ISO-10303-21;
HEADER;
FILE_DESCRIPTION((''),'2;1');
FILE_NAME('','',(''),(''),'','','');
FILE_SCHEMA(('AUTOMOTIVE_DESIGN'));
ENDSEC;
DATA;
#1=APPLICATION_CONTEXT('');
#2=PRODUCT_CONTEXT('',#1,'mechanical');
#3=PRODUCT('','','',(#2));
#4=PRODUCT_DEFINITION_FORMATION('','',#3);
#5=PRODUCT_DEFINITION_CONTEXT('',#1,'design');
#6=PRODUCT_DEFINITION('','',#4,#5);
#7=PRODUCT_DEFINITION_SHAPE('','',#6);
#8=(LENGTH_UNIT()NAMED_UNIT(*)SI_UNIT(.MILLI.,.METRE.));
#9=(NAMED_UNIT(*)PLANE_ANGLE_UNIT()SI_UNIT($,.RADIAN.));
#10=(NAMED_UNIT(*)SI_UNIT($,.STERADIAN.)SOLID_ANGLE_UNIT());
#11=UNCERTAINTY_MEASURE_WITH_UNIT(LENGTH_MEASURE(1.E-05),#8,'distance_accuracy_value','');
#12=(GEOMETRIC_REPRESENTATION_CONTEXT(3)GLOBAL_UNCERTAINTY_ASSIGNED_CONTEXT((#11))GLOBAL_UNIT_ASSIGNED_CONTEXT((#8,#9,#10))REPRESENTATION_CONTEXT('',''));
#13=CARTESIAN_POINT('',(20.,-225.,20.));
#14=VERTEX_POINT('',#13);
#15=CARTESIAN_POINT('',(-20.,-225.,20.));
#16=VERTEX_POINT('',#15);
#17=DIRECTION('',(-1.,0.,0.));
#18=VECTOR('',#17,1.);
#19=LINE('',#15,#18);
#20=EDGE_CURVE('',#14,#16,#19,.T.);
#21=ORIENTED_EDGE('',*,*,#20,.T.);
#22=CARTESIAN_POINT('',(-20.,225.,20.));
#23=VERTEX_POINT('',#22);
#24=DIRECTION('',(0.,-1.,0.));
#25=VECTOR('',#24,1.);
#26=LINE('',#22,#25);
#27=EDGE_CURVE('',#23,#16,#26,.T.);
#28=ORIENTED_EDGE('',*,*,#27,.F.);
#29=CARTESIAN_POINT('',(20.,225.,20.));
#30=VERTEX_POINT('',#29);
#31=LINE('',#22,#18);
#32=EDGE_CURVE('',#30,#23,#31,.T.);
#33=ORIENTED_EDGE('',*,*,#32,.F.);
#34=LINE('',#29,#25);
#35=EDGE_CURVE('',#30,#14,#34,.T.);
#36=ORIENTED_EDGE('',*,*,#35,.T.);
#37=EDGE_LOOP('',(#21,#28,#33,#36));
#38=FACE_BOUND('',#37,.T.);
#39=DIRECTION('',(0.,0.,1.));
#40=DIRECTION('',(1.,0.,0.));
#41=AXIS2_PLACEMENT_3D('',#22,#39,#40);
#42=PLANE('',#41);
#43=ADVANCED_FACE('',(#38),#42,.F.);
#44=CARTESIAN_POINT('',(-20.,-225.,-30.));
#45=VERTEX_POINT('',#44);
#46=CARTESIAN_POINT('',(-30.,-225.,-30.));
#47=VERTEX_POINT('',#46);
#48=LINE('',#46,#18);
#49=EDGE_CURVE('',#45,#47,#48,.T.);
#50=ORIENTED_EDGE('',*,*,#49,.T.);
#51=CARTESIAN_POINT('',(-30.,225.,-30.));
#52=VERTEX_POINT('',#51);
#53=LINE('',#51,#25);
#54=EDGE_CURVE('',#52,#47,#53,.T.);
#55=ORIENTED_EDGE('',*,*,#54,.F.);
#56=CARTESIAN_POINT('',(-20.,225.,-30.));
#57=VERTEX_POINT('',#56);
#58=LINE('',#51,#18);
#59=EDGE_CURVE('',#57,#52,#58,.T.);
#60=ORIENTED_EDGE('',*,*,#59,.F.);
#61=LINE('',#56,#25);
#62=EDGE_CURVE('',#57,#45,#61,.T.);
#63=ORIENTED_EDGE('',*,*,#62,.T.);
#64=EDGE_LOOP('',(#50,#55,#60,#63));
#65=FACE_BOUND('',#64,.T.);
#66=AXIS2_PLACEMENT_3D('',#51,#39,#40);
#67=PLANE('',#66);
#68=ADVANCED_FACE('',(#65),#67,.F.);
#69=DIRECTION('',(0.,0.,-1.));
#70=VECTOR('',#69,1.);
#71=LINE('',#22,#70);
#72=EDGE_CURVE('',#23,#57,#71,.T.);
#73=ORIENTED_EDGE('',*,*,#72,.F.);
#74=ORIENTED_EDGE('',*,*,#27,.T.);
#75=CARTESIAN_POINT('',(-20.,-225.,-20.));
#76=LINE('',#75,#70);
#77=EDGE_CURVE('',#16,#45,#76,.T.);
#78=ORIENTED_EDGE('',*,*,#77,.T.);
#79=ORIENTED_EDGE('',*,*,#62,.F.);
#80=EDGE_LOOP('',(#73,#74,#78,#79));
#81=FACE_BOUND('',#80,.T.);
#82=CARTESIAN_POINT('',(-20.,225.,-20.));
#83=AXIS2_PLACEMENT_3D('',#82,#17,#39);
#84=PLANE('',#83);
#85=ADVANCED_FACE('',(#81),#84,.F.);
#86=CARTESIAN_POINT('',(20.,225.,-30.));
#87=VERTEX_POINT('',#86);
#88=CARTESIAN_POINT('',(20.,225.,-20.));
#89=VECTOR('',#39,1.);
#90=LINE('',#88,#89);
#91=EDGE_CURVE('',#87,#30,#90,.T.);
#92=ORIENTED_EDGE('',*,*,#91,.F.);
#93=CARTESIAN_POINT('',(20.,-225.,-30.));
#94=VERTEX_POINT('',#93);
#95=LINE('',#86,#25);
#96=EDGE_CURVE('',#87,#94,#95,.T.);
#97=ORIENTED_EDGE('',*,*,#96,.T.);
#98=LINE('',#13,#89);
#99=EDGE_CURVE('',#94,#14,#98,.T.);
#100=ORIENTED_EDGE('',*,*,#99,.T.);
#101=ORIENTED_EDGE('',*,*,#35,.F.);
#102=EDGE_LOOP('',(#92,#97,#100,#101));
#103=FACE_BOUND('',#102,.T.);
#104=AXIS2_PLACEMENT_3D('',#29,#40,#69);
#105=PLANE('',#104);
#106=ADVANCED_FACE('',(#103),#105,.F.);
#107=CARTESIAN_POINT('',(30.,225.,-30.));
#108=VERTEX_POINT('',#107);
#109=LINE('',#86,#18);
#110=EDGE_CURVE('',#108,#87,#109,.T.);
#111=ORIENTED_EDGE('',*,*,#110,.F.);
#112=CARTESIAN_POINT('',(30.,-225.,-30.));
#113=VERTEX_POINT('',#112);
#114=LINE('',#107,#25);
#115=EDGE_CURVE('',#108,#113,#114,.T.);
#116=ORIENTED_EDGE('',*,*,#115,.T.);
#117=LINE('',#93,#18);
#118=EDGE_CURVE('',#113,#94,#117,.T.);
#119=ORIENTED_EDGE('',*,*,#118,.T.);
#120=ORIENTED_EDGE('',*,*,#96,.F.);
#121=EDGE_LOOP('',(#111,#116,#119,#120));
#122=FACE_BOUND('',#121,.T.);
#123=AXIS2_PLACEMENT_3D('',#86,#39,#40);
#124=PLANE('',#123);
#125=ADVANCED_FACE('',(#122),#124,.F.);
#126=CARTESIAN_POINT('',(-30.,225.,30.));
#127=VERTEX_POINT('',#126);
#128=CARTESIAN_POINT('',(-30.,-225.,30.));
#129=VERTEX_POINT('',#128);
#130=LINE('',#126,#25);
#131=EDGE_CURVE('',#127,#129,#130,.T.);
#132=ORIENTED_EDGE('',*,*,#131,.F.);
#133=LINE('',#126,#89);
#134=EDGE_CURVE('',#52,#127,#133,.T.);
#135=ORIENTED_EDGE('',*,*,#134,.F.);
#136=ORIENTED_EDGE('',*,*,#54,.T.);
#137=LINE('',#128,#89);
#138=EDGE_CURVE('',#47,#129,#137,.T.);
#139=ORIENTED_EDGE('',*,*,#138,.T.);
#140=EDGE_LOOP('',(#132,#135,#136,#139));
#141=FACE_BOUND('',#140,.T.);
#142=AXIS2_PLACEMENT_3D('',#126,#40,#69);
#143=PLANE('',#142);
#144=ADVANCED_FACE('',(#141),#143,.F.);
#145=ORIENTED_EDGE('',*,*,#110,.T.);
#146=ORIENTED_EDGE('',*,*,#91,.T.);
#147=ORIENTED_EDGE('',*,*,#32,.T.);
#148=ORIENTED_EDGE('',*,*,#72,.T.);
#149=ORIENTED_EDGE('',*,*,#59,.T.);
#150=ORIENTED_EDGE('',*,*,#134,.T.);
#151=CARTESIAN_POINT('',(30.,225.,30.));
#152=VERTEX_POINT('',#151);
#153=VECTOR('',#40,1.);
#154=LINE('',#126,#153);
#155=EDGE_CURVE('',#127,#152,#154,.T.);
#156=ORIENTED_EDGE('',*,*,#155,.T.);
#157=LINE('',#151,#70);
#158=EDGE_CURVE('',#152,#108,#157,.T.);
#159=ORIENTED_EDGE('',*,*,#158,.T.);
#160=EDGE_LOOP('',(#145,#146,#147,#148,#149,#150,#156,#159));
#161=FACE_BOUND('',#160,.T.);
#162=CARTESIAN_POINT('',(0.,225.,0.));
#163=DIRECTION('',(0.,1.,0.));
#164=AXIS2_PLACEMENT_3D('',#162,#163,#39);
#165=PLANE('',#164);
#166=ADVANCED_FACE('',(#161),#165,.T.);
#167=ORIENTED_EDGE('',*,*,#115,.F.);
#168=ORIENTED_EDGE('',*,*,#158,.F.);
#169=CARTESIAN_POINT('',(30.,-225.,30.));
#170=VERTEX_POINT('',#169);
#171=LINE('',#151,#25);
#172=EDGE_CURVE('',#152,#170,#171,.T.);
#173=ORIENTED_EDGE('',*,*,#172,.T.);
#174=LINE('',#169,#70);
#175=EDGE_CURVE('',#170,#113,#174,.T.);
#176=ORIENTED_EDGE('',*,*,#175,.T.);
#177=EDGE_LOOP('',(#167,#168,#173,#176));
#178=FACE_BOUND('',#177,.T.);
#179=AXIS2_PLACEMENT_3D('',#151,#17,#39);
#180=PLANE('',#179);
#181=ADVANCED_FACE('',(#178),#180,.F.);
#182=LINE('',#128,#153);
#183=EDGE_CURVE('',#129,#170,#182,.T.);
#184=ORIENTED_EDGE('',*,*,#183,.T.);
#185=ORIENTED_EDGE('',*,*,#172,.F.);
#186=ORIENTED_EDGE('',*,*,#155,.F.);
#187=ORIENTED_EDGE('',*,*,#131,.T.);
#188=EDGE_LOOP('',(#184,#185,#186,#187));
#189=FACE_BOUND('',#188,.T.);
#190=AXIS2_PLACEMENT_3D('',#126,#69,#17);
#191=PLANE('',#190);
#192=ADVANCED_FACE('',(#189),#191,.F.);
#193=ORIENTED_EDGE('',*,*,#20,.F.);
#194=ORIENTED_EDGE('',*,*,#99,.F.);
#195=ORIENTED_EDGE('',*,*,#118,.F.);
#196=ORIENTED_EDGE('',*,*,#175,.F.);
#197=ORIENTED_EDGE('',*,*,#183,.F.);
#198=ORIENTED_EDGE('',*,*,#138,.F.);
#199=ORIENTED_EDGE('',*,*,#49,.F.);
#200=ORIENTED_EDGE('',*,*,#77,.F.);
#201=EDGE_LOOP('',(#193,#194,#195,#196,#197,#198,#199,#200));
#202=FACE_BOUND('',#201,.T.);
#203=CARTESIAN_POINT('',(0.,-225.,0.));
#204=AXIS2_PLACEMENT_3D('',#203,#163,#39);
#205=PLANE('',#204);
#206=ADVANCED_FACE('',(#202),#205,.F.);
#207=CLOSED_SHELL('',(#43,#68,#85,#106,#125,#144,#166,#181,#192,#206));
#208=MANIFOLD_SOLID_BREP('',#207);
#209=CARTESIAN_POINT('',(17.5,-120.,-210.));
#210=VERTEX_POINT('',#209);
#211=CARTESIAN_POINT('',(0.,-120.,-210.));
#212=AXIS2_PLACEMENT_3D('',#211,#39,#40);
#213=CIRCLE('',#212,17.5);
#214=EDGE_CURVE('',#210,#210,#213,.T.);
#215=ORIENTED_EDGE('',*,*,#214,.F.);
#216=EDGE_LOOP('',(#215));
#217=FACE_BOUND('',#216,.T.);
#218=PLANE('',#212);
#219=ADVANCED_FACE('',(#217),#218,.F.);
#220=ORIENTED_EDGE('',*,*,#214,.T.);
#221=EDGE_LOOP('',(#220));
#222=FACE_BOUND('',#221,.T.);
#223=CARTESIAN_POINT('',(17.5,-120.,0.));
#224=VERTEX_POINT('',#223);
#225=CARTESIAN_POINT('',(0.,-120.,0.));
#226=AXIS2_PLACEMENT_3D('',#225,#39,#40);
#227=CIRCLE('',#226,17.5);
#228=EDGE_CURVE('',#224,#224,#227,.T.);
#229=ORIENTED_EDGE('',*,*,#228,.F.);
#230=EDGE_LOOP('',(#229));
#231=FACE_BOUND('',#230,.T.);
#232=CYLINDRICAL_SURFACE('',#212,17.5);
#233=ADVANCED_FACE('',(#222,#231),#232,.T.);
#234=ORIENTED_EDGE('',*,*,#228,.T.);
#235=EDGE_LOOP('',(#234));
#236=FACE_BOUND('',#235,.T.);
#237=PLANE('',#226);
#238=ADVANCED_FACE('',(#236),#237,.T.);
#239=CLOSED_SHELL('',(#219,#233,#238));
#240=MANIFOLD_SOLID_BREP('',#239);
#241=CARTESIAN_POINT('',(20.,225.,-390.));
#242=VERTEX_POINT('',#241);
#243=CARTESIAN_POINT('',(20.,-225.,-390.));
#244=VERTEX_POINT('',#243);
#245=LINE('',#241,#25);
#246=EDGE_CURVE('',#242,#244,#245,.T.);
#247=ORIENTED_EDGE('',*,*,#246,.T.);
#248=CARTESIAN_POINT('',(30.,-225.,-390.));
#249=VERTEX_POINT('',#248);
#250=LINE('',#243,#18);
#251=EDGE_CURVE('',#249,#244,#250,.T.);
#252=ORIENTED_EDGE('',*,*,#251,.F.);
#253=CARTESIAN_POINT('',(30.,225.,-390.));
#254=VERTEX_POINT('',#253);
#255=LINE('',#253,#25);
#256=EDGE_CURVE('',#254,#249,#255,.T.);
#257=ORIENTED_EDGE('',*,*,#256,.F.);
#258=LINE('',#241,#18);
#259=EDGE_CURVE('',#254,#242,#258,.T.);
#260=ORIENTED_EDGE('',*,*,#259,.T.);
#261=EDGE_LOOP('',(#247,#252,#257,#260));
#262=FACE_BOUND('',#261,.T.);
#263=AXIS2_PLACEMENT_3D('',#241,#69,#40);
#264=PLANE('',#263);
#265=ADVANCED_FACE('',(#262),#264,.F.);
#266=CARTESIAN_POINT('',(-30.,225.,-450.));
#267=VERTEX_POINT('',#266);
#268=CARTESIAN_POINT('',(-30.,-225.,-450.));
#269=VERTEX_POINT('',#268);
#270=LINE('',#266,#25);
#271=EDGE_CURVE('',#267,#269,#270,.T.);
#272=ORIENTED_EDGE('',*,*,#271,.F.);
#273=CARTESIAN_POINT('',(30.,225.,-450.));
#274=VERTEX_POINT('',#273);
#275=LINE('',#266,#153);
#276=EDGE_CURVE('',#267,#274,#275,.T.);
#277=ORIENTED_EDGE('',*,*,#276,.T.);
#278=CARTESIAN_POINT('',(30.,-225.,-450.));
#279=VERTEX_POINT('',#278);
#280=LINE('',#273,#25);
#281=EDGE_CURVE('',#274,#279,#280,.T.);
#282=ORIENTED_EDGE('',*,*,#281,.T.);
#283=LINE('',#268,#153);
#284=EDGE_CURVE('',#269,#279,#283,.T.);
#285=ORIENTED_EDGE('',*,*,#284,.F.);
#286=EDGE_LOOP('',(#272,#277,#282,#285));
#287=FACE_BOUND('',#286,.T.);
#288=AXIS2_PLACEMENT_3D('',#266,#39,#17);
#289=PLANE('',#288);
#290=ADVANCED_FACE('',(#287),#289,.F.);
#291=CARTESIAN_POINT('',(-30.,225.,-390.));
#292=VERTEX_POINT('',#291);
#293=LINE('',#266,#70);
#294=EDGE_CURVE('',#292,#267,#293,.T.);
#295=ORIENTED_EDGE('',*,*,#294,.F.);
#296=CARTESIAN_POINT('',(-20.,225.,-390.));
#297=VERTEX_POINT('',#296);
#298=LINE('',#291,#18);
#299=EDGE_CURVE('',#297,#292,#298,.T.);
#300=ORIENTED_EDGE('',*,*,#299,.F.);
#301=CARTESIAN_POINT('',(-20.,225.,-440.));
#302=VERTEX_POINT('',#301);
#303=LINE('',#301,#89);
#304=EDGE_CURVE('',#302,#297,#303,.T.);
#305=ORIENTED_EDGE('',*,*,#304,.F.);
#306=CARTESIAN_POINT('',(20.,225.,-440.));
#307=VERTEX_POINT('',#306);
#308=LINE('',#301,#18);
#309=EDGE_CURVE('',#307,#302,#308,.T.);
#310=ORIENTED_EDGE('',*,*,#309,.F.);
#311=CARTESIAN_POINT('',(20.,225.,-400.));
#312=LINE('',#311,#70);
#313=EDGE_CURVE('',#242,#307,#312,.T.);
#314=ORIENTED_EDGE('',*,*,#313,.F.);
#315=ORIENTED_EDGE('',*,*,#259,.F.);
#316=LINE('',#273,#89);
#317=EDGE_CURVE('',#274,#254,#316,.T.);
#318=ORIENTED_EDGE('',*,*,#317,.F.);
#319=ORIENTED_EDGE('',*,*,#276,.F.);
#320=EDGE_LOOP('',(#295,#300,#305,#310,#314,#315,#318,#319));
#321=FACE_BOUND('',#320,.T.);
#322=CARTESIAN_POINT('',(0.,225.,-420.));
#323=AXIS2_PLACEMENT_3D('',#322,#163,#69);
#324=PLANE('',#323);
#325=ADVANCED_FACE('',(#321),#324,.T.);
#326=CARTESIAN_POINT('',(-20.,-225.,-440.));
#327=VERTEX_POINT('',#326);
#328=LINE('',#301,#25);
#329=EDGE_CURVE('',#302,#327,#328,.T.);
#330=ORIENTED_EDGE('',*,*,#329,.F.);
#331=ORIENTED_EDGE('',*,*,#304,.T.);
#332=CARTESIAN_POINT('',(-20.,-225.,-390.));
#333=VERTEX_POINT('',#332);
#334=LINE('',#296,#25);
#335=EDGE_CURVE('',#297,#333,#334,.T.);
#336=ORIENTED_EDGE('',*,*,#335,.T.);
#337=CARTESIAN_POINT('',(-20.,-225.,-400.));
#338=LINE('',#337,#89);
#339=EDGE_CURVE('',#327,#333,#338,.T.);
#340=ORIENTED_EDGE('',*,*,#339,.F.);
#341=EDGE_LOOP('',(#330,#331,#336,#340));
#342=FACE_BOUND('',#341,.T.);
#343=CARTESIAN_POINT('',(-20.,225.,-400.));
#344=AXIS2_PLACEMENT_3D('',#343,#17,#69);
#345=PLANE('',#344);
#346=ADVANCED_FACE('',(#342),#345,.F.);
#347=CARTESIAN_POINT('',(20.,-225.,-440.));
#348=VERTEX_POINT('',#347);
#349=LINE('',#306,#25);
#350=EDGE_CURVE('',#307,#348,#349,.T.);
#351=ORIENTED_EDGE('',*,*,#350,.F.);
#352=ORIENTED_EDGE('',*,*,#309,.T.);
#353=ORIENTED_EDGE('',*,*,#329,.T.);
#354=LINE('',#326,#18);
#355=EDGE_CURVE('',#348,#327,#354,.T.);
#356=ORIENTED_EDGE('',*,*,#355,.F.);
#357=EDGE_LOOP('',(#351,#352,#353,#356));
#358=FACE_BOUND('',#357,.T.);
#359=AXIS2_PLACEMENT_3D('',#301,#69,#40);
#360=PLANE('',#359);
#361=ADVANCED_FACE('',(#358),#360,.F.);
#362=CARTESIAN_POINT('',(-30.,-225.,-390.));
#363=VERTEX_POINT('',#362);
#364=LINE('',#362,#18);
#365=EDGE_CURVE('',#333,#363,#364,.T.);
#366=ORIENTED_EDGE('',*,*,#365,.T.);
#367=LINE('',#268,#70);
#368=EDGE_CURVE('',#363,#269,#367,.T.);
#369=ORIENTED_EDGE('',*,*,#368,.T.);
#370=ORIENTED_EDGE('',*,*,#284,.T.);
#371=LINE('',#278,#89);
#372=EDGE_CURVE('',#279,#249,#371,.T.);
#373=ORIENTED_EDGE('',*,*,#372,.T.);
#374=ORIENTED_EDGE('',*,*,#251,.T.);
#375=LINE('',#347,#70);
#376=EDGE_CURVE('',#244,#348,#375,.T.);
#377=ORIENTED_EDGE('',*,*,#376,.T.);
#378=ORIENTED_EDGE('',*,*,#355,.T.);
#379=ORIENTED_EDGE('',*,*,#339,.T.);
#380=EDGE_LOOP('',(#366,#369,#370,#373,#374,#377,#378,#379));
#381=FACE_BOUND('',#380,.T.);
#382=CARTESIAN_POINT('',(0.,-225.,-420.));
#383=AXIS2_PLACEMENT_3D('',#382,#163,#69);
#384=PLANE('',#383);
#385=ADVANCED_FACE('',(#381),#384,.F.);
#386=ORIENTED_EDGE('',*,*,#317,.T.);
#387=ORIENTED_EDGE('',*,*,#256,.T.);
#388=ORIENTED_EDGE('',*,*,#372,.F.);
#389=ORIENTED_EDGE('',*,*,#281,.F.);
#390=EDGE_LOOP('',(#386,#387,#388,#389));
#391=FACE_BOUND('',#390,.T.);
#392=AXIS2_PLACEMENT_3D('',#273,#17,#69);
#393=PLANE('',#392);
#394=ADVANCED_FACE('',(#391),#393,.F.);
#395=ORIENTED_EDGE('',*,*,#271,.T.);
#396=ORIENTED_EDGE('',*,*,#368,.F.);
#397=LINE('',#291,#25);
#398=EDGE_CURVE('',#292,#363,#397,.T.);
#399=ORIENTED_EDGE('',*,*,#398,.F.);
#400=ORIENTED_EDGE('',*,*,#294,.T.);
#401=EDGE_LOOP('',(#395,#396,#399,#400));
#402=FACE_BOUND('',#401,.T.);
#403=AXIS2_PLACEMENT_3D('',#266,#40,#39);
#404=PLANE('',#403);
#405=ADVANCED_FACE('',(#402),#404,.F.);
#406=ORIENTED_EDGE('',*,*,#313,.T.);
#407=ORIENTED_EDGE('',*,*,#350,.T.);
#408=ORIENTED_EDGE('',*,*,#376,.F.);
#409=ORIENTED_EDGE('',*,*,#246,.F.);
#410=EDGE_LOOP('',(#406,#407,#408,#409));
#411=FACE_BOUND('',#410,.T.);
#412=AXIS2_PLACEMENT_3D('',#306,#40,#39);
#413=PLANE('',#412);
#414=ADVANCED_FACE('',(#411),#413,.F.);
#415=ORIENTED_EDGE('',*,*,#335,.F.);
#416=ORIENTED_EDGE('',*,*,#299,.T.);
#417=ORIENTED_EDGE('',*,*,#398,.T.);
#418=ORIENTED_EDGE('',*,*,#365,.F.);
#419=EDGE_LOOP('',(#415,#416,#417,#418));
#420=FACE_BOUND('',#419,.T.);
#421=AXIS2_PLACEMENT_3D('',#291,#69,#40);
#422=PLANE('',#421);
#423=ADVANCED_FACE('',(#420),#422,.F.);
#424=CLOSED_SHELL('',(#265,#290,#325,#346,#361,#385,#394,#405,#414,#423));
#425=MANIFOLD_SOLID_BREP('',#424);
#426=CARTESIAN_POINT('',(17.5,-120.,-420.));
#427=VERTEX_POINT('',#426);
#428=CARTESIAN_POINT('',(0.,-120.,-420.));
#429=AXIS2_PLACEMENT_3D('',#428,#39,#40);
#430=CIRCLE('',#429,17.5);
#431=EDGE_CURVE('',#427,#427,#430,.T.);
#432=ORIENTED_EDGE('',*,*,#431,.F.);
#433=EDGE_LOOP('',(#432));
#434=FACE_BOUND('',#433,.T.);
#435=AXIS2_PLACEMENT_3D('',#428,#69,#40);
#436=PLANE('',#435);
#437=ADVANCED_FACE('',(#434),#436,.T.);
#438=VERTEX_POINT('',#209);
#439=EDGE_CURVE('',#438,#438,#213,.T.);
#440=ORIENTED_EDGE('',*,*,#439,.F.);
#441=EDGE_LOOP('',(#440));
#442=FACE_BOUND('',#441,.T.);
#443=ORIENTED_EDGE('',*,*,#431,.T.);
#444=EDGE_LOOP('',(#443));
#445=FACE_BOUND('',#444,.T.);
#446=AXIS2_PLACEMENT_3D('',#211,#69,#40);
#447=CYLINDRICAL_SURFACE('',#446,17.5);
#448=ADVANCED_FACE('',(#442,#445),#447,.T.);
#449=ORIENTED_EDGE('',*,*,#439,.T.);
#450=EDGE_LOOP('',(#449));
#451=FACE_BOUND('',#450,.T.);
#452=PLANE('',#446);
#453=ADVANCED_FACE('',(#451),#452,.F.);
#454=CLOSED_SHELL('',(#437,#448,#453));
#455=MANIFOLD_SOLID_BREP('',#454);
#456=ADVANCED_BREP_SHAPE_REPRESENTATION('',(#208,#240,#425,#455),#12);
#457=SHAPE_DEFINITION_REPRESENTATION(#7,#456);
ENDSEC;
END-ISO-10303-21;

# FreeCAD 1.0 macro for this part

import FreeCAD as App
import Part
import Sketcher


def add_polygon(sketch, points):
    """Adds a closed chain of lines whose ends are joined by coincident constraints."""
    first, n = sketch.GeometryCount, len(points)
    for a, b in zip(points, points[1:] + points[:1]):
        sketch.addGeometry(Part.LineSegment(App.Vector(*a, 0), App.Vector(*b, 0)), False)
    for i in range(n):
        sketch.addConstraint(Sketcher.Constraint("Coincident", first + i, 2, first + (i + 1) % n, 1))

doc = App.newDocument("Part")
body = doc.addObject("PartDesign::Body", "Body")

sketch1 = body.newObject("Sketcher::SketchObject", "Sketch")
sketch1.AttachmentSupport = (doc.getObject("XZ_Plane"), [""])
sketch1.MapMode = "FlatFace"
add_polygon(sketch1, [(-20, -30), (-30, -30), (-30, 30), (30, 30), (30, -30), (20, -30), (20, 20), (-20, 20)])
sketch1.addConstraint(Sketcher.Constraint("Horizontal", 0))
sketch1.addConstraint(Sketcher.Constraint("Vertical", 1))
sketch1.addConstraint(Sketcher.Constraint("Horizontal", 2))
sketch1.addConstraint(Sketcher.Constraint("Vertical", 3))
sketch1.addConstraint(Sketcher.Constraint("Horizontal", 4))
sketch1.addConstraint(Sketcher.Constraint("Vertical", 5))
sketch1.addConstraint(Sketcher.Constraint("Horizontal", 6))
sketch1.addConstraint(Sketcher.Constraint("Vertical", 7))
sketch1.addConstraint(Sketcher.Constraint("Symmetric", 0, 2, 2, 2, -1, 1))
sketch1.addConstraint(Sketcher.Constraint("Symmetric", 4, 2, 7, 2, -2))
sketch1.addConstraint(Sketcher.Constraint("Equal", 2, 1))
sketch1.addConstraint(Sketcher.Constraint("DistanceX", 0, 2, 0, 1, 10.0))
sketch1.addConstraint(Sketcher.Constraint("DistanceX", 2, 1, 2, 2, 60.0))
sketch1.addConstraint(Sketcher.Constraint("DistanceY", 5, 1, 5, 2, 50.0))
pad1 = body.newObject("PartDesign::Pad", "Pad")
pad1.Profile = sketch1
pad1.Length = 450
pad1.Midplane = True
body2 = doc.addObject("PartDesign::Body", "Body001")

sketch2 = body2.newObject("Sketcher::SketchObject", "Sketch001")
sketch2.AttachmentSupport = (doc.getObject("XY_Plane001"), [""])
sketch2.MapMode = "FlatFace"
sketch2.addGeometry(Part.Circle(App.Vector(0, -120, 0), App.Vector(0, 0, 1), 18), False)
sketch2.addConstraint(Sketcher.Constraint("PointOnObject", 0, 3, -2))
sketch2.addConstraint(Sketcher.Constraint("Diameter", 0, 35.0))
sketch2.addConstraint(Sketcher.Constraint("DistanceY", 0, 3, -1, 1, 120.0))
pad2 = body2.newObject("PartDesign::Pad", "Pad001")
pad2.Profile = sketch2
pad2.Length = 210
pad2.Reversed = True
body3 = doc.addObject("PartDesign::Body", "Body002")
doc.recompute()

mirroring = doc.addObject("Part::Mirroring", "Mirroring")
mirroring.Source = body2
mirroring.Base = App.Vector(0, -120, -210)
mirroring.Normal = App.Vector(0, 0, 1)
body3.BaseFeature = mirroring
doc.recompute()
body4 = doc.addObject("PartDesign::Body", "Body003")
doc.recompute()

mirroring2 = doc.addObject("Part::Mirroring", "Mirroring001")
mirroring2.Source = body
mirroring2.Base = App.Vector(0, -120, -210)
mirroring2.Normal = App.Vector(0, 0, 1)
body4.BaseFeature = mirroring2
doc.recompute()
mirroring.Visibility = False
mirroring2.Visibility = False

doc.recompute()
